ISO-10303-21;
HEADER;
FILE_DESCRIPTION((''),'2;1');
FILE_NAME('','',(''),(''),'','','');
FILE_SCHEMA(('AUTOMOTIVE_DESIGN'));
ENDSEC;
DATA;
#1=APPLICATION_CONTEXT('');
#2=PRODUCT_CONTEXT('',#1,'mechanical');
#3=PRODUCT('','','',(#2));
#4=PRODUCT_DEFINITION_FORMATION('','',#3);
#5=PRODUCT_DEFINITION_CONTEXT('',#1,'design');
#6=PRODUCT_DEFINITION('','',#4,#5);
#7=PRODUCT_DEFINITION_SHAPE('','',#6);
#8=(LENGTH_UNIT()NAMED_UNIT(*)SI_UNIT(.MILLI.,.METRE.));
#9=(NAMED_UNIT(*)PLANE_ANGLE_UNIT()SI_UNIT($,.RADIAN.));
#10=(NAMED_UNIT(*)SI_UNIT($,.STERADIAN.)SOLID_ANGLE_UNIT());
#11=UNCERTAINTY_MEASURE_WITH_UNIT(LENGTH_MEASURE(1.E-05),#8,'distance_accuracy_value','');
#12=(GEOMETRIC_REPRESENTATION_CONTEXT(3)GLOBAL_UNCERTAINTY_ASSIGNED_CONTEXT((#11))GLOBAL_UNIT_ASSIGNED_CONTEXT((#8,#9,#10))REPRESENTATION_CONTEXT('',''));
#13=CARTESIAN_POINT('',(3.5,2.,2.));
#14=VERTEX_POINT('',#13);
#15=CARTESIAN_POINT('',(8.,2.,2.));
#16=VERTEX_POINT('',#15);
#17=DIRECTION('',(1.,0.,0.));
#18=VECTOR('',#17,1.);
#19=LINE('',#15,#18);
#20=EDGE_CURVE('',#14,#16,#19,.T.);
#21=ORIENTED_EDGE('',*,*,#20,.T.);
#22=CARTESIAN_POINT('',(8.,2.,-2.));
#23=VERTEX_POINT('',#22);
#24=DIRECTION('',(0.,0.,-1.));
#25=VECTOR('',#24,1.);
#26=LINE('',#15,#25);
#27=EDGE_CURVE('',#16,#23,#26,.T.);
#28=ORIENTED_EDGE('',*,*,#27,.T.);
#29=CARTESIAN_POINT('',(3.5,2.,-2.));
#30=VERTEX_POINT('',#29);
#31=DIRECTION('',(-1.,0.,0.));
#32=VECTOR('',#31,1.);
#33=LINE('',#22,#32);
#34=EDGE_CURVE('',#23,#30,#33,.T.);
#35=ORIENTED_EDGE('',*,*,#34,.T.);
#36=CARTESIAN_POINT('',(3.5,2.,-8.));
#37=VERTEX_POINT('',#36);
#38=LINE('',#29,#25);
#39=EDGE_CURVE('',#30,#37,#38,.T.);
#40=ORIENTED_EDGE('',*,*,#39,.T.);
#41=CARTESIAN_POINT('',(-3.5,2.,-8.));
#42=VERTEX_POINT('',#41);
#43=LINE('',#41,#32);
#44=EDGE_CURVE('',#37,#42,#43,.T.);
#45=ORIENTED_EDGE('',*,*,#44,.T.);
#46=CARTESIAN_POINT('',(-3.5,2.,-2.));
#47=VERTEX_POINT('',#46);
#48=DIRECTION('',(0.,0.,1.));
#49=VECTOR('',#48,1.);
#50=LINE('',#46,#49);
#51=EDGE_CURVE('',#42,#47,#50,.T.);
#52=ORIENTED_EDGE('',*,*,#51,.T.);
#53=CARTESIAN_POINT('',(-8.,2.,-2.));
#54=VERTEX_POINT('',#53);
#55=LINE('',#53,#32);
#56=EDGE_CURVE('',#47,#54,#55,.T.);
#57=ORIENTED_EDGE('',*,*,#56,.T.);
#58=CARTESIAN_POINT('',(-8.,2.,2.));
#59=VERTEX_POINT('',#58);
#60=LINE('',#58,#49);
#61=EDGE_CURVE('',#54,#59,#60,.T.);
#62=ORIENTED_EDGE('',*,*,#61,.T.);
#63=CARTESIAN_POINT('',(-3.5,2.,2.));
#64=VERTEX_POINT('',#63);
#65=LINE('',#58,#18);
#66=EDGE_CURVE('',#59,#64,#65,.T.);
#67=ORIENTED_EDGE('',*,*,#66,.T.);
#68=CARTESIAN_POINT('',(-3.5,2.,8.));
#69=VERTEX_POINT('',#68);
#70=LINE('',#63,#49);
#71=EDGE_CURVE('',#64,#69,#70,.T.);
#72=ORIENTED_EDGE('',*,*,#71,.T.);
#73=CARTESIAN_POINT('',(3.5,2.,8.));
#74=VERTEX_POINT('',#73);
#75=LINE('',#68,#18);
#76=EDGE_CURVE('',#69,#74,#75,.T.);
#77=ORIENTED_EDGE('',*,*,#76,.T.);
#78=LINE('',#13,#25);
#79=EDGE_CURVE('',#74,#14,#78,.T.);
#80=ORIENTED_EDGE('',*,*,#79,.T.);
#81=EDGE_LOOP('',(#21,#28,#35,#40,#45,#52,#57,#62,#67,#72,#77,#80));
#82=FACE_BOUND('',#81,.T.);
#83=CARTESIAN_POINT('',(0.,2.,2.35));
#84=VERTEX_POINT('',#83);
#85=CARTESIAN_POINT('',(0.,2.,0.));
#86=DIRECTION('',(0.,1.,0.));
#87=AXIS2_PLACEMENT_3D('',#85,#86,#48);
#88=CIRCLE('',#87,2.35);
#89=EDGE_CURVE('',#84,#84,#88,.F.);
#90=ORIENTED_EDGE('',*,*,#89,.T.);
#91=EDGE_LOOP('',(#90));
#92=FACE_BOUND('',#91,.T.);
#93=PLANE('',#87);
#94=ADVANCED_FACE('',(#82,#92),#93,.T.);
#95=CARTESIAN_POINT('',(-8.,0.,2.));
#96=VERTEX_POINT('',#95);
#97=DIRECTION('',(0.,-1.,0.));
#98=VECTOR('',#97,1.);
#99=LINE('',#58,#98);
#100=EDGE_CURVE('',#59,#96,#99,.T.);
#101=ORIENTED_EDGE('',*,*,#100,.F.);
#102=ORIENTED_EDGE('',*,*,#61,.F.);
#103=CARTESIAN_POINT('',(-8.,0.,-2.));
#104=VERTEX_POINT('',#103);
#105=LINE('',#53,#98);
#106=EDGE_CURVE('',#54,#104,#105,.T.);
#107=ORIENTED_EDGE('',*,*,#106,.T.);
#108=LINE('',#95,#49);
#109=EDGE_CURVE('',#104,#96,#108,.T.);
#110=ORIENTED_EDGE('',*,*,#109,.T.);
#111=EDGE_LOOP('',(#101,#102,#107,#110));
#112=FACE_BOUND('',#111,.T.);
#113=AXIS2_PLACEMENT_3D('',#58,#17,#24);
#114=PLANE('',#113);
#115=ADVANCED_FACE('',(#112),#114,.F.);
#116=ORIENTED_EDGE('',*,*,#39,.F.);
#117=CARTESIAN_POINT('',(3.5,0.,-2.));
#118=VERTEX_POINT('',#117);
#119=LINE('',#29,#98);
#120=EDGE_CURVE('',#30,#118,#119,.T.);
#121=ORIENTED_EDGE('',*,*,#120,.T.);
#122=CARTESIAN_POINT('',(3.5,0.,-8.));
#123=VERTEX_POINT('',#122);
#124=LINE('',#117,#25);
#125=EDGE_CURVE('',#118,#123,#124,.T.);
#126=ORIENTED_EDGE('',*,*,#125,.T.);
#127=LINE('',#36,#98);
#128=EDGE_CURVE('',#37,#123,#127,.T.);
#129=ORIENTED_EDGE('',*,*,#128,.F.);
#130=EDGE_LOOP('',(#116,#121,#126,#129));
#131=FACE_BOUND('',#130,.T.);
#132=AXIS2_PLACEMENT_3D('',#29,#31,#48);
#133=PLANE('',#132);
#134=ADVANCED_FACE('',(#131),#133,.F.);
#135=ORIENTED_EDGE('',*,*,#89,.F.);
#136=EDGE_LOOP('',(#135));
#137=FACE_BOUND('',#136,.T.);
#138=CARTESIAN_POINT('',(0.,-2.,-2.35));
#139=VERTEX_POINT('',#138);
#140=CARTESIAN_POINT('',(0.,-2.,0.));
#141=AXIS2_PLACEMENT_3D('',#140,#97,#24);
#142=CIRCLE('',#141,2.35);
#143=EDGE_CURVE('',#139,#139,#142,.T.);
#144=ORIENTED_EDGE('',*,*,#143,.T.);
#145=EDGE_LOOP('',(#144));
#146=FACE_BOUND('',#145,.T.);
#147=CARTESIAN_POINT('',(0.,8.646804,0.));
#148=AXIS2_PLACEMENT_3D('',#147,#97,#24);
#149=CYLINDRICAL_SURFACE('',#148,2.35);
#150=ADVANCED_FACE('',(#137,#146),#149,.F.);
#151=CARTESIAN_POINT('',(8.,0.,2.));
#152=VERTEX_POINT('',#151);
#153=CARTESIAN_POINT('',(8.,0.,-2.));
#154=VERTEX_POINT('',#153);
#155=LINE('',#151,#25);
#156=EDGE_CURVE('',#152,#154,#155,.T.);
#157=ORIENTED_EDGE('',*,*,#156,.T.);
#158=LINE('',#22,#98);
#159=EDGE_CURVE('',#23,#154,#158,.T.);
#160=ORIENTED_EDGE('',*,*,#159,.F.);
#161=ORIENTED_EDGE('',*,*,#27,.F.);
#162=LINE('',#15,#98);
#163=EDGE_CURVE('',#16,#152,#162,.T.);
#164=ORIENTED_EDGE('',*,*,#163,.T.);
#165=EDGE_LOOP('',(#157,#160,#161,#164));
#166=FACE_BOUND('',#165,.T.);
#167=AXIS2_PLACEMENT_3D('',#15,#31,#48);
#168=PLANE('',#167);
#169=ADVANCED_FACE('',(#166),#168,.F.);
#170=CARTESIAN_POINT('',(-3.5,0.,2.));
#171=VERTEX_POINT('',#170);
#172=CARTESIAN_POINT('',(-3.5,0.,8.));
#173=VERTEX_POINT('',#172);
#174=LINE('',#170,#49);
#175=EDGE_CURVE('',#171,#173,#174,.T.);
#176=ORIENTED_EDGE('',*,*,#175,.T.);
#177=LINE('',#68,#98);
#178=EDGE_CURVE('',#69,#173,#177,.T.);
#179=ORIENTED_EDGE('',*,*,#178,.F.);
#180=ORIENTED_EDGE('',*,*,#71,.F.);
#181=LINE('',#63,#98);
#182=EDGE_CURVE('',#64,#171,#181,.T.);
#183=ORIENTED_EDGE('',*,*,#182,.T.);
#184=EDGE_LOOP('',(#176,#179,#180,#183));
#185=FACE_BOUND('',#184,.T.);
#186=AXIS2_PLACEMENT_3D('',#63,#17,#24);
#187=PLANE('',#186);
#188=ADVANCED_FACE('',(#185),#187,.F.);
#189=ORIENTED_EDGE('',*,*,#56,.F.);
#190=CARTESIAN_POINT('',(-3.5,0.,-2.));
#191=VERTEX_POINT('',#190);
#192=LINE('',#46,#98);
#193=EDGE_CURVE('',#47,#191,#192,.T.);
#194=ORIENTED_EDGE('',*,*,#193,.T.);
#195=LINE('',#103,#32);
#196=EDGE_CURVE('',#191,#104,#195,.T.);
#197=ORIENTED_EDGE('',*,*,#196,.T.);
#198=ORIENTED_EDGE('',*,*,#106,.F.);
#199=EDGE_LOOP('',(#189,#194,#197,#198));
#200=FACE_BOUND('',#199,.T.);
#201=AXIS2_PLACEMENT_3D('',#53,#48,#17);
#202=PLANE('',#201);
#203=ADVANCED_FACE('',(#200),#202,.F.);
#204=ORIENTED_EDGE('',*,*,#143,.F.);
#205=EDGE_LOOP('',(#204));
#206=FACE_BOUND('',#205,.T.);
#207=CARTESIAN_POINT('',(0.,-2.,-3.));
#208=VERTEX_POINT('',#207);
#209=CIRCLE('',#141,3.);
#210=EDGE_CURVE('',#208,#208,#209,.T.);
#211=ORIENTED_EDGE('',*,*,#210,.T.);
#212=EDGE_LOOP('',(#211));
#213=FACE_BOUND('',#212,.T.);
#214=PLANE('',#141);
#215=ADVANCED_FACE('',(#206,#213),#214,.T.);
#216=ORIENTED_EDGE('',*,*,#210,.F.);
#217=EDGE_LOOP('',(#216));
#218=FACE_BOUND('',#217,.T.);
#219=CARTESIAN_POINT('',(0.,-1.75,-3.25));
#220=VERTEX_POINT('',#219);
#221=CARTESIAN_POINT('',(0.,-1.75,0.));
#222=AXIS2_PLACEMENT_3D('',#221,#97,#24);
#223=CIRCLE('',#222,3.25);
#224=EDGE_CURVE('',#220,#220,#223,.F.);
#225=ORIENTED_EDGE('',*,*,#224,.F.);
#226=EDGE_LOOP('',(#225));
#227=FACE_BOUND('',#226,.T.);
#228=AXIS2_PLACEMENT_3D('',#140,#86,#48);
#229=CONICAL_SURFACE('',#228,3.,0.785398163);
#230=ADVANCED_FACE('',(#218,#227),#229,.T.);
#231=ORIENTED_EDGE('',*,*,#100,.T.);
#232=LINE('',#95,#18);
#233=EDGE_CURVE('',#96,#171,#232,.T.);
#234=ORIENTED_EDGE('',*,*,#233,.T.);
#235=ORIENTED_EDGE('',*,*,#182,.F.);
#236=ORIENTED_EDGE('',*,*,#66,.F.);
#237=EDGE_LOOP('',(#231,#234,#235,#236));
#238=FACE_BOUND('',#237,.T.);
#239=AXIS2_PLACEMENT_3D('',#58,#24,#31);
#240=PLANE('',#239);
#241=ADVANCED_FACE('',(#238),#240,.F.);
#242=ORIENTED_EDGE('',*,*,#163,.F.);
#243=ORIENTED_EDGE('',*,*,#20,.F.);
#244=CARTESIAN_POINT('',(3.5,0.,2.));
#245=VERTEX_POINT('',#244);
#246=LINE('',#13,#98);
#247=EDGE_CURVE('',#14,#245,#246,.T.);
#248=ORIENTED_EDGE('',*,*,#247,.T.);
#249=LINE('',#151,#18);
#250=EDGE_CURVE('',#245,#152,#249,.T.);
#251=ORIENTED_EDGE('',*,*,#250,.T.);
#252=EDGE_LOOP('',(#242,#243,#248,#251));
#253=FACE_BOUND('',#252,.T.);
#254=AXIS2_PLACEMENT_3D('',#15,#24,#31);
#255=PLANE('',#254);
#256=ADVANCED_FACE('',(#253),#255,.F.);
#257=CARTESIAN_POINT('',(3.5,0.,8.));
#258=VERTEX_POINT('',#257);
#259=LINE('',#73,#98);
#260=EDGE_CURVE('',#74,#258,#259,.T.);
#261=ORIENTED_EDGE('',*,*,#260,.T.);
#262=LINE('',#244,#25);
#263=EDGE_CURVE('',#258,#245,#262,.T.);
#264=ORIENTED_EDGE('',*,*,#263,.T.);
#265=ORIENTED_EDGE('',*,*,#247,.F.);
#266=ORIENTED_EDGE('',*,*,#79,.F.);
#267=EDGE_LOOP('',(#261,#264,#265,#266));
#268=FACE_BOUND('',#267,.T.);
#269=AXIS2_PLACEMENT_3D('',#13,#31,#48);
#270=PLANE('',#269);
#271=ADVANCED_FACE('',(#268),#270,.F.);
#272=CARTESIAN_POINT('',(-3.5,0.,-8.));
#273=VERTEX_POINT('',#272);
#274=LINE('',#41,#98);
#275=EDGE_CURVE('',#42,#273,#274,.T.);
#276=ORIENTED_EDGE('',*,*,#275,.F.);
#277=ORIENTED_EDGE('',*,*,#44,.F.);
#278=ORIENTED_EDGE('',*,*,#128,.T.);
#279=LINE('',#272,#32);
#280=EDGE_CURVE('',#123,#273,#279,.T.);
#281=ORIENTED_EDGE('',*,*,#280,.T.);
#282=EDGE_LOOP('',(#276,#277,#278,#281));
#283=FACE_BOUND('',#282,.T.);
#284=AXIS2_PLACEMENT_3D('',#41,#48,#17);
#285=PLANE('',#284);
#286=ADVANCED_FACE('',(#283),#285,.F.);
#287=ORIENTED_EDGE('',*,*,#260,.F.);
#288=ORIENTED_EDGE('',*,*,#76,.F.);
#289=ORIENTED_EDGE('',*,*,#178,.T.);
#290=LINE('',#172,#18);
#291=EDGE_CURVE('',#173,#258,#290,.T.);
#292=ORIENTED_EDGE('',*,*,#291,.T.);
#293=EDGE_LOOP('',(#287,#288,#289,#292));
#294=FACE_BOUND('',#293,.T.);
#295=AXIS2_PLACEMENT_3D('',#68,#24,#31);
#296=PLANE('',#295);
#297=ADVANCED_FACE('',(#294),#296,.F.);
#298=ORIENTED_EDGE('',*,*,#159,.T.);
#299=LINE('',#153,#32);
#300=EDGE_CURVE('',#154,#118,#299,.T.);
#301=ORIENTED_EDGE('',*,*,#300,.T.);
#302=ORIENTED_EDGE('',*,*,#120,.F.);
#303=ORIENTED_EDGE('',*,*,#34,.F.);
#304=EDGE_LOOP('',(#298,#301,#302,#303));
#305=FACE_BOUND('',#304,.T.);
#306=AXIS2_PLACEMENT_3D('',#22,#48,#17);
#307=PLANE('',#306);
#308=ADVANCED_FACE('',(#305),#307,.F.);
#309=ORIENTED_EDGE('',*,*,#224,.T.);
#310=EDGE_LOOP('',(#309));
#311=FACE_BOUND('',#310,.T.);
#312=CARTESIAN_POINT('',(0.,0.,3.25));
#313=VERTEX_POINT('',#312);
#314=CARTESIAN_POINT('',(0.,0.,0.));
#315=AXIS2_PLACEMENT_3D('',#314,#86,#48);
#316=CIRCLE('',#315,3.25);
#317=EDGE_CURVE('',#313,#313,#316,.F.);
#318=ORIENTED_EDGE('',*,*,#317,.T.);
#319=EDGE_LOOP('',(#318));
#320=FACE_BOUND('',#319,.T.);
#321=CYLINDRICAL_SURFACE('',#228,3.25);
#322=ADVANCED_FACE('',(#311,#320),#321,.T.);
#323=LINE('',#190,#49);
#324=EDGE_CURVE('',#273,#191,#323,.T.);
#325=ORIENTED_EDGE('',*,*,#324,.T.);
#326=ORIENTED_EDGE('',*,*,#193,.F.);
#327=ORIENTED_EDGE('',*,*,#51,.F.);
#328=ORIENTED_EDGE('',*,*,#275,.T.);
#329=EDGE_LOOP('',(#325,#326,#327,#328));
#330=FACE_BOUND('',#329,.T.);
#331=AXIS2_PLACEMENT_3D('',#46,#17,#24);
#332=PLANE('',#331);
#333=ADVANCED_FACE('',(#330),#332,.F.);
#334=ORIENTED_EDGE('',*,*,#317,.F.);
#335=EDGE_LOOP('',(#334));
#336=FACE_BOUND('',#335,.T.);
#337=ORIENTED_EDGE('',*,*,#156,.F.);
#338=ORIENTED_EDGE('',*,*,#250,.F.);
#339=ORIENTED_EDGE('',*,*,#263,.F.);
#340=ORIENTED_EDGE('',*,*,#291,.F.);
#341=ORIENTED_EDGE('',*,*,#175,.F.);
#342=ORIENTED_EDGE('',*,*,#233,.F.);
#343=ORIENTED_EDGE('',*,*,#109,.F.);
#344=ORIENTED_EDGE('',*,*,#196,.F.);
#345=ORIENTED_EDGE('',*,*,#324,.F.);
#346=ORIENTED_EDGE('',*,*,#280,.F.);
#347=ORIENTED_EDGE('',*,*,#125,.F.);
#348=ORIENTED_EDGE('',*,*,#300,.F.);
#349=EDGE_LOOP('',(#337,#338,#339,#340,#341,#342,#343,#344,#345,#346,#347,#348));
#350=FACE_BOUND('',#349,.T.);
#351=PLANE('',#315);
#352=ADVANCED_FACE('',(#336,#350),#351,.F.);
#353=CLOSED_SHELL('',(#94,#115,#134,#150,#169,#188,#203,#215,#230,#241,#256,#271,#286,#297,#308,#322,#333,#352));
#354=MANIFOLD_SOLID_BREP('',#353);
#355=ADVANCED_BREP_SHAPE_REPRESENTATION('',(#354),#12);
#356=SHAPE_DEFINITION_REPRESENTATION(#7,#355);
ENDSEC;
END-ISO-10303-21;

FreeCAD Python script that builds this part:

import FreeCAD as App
import Part
import Sketcher

V = App.Vector


def edges_at(feature, points):
    """Names of the edges that pass closest to the given points."""
    edges = feature.Shape.Edges
    near = lambda p: min(range(len(edges)), key=lambda i: edges[i].distToShape(Part.Vertex(*p))[0])
    return sorted({f"Edge{near(p) + 1}" for p in points})

doc = App.newDocument("Part")
body = doc.addObject("PartDesign::Body", "Body")

sketch1 = doc.addObject("Sketcher::SketchObject", "Sketch")
body.addObject(sketch1)
sketch1.AttachmentSupport = (doc.XZ_Plane, [""])
sketch1.MapMode = "FlatFace"
sketch1.addGeometry([
    Part.LineSegment(V(-8, -2, 0), V(-8, 2, 0)),
    Part.LineSegment(V(-8, 2, 0), V(-3.5, 2, 0)),
    Part.LineSegment(V(-3.5, 2, 0), V(-3.5, 8, 0)),
    Part.LineSegment(V(-3.5, 8, 0), V(3.5, 8, 0)),
    Part.LineSegment(V(3.5, 8, 0), V(3.5, 2, 0)),
    Part.LineSegment(V(3.5, 2, 0), V(8, 2, 0)),
    Part.LineSegment(V(8, 2, 0), V(8, -2, 0)),
    Part.LineSegment(V(8, -2, 0), V(3.5, -2, 0)),
    Part.LineSegment(V(3.5, -2, 0), V(3.5, -8, 0)),
    Part.LineSegment(V(3.5, -8, 0), V(-3.5, -8, 0)),
    Part.LineSegment(V(-3.5, -8, 0), V(-3.5, -2, 0)),
    Part.LineSegment(V(-3.5, -2, 0), V(-8, -2, 0)),
], False)
sketch1.addConstraint([
    Sketcher.Constraint("Coincident", 0, 2, 1, 1),
    Sketcher.Constraint("Coincident", 1, 2, 2, 1),
    Sketcher.Constraint("Coincident", 2, 2, 3, 1),
    Sketcher.Constraint("Coincident", 3, 2, 4, 1),
    Sketcher.Constraint("Coincident", 4, 2, 5, 1),
    Sketcher.Constraint("Coincident", 5, 2, 6, 1),
    Sketcher.Constraint("Coincident", 6, 2, 7, 1),
    Sketcher.Constraint("Coincident", 7, 2, 8, 1),
    Sketcher.Constraint("Coincident", 8, 2, 9, 1),
    Sketcher.Constraint("Coincident", 9, 2, 10, 1),
    Sketcher.Constraint("Coincident", 10, 2, 11, 1),
    Sketcher.Constraint("Coincident", 11, 2, 0, 1),
    Sketcher.Constraint("Vertical", 0),
    Sketcher.Constraint("Horizontal", 1),
    Sketcher.Constraint("Vertical", 2),
    Sketcher.Constraint("Horizontal", 3),
    Sketcher.Constraint("Vertical", 4),
    Sketcher.Constraint("Horizontal", 5),
    Sketcher.Constraint("Vertical", 6),
    Sketcher.Constraint("Horizontal", 7),
    Sketcher.Constraint("Vertical", 8),
    Sketcher.Constraint("Horizontal", 9),
    Sketcher.Constraint("Vertical", 10),
    Sketcher.Constraint("Horizontal", 11),
    Sketcher.Constraint("Symmetric", 0, 2, 6, 2, -1, 1),
    Sketcher.Constraint("Symmetric", 2, 2, 8, 2, -1, 1),
    Sketcher.Constraint("Symmetric", 4, 2, 10, 2, -1, 1),
    Sketcher.Constraint("Symmetric", 1, 2, 4, 2, -2),
    Sketcher.Constraint("DistanceX", 3, 1, 3, 2, 7.0),
    Sketcher.Constraint("DistanceY", 0, 1, 0, 2, 4.0),
    Sketcher.Constraint("DistanceY", 2, 1, 2, 2, 6.0),
    Sketcher.Constraint("DistanceX", 1, 1, 1, 2, 4.5),
])
pad1 = doc.addObject("PartDesign::Pad", "Pad")
body.addObject(pad1)
pad1.Profile = sketch1
pad1.Length = 2
pad1.Reversed = True

sketch2 = doc.addObject("Sketcher::SketchObject", "Sketch001")
body.addObject(sketch2)
sketch2.AttachmentSupport = (doc.XZ_Plane, [""])
sketch2.MapMode = "FlatFace"
sketch2.addGeometry(Part.Circle(V(0, 0, 0), V(0, 0, 1), 1.2), False)
sketch2.addConstraint([
    Sketcher.Constraint("Coincident", 0, 3, -1, 1),
    Sketcher.Constraint("Diameter", 0, 2.5),
])
pocket1 = doc.addObject("PartDesign::Pocket", "Pocket")
body.addObject(pocket1)
pocket1.Profile = sketch2
pocket1.Type = "ThroughAll"
pocket1.Midplane = True

sketch3 = doc.addObject("Sketcher::SketchObject", "Sketch002")
body.addObject(sketch3)
sketch3.AttachmentSupport = (doc.XZ_Plane, [""])
sketch3.MapMode = "FlatFace"
sketch3.addGeometry(Part.Circle(V(0, 0, 0), V(0, 0, 1), 3.2), False)
sketch3.addConstraint([
    Sketcher.Constraint("Coincident", 0, 3, -1, 1),
    Sketcher.Constraint("Diameter", 0, 6.5),
])
pad2 = doc.addObject("PartDesign::Pad", "Pad001")
body.addObject(pad2)
pad2.Profile = sketch3
pad2.Length = 2
doc.recompute()

chamfer = doc.addObject("PartDesign::Chamfer", "Chamfer")
body.addObject(chamfer)
chamfer.Base = (pad2, edges_at(pad2, [(0, -2, -3.25)]))
chamfer.Size = 0.25

sketch4 = doc.addObject("Sketcher::SketchObject", "Sketch003")
body.addObject(sketch4)
sketch4.AttachmentSupport = (doc.XZ_Plane, [""])
sketch4.MapMode = "FlatFace"
sketch4.AttachmentOffset = App.Placement(V(0, 0, 2), App.Rotation())
sketch4.addGeometry(Part.Circle(V(0, 0, 0), V(0, 0, 1), 2.4), False)
sketch4.addConstraint([
    Sketcher.Constraint("Coincident", 0, 3, -1, 1),
    Sketcher.Constraint("Diameter", 0, 4.7),
])
pocket2 = doc.addObject("PartDesign::Pocket", "Pocket001")
body.addObject(pocket2)
pocket2.Profile = sketch4
pocket2.Length = 4

doc.recompute()
